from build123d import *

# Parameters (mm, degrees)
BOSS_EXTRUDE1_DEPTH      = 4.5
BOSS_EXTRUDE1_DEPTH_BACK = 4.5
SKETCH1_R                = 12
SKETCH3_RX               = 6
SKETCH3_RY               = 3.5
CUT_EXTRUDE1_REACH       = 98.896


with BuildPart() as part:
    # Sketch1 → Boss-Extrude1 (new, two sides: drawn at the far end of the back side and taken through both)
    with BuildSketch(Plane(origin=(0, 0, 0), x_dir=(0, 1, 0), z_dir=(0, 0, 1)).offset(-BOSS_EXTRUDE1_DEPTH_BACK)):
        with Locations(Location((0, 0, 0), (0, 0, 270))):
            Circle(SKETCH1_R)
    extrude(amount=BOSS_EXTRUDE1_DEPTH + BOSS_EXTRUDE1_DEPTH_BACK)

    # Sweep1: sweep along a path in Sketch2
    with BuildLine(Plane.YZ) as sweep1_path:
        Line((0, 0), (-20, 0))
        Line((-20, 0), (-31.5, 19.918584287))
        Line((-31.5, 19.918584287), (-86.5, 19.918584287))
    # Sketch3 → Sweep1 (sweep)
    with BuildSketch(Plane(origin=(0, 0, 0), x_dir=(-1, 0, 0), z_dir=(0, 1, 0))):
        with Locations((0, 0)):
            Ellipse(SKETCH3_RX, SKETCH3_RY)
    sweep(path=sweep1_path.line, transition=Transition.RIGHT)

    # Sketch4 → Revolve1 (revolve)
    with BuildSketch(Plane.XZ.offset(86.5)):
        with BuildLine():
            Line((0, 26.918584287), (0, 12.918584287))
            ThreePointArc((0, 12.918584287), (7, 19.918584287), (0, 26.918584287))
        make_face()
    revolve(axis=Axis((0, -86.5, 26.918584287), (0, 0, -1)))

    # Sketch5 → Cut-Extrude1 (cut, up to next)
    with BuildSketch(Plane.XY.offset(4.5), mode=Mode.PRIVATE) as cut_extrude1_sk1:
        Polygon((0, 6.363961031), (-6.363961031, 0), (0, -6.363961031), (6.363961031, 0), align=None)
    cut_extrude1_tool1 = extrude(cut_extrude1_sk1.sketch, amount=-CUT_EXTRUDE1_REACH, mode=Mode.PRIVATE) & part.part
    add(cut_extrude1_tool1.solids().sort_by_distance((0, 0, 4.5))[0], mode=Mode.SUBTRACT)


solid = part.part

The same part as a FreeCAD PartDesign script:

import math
import FreeCAD as App
import Part
import Sketcher

V = App.Vector
Q = App.Units.Quantity

doc = App.newDocument("Part")
body = doc.addObject("PartDesign::Body", "Body")

sketch1 = body.newObject("Sketcher::SketchObject", "Sketch")
sketch1.AttachmentSupport = (doc.getObject("XY_Plane"), [""])
sketch1.MapMode = "FlatFace"
sketch1.addGeometry(Part.Circle(V(0, 0, 0), V(0, 0, 1), 12), False)
sketch1.addConstraint([
    Sketcher.Constraint("Coincident", 0, 3, -1, 1),
    Sketcher.Constraint("Diameter", 0, 24.0),
])
pad1 = body.newObject("PartDesign::Pad", "Pad")
pad1.Profile = sketch1
pad1.Type = "TwoLengths"
pad1.Length = 4.5
pad1.Length2 = 4.5

sketch2 = body.newObject("Sketcher::SketchObject", "Sketch001")
sketch2.AttachmentSupport = (doc.getObject("XZ_Plane"), [""])
sketch2.MapMode = "FlatFace"
sketch2.addGeometry(Part.Ellipse(V(-6, 0, 0), V(0, -3.5, 0), V(0, 0, 0)), False)
sketch2.addConstraint(Sketcher.Constraint("Block", 0))

sketch3 = body.newObject("Sketcher::SketchObject", "Sketch002")
sketch3.AttachmentSupport = (doc.getObject("YZ_Plane"), [""])
sketch3.MapMode = "FlatFace"
sketch3.addGeometry([
    Part.LineSegment(V(0, 0, 0), V(-20, 0, 0)),
    Part.LineSegment(V(-20, 0, 0), V(-32, 20, 0)),
    Part.LineSegment(V(-32, 20, 0), V(-86, 20, 0)),
], False)
sketch3.addConstraint([
    Sketcher.Constraint("Coincident", 0, 2, 1, 1),
    Sketcher.Constraint("Coincident", 1, 2, 2, 1),
    Sketcher.Constraint("Horizontal", 0),
    Sketcher.Constraint("Horizontal", 2),
    Sketcher.Constraint("Coincident", 0, 1, -1, 1),
    Sketcher.Constraint("DistanceX", 0, 2, 0, 1, 20.0),
    Sketcher.Constraint("DistanceX", 2, 2, 2, 1, 55.0),
    Sketcher.Constraint("Angle", 1, Q("120 deg")),
    Sketcher.Constraint("Distance", 1, 23.0),
])
doc.recompute()

additivepipe = body.newObject("PartDesign::AdditivePipe", "AdditivePipe")
additivepipe.Profile = sketch2
additivepipe.Spine = (sketch3, ["Edge1", "Edge2", "Edge3"])
additivepipe.Transition = "Right corner"

sketch4 = body.newObject("Sketcher::SketchObject", "Sketch003")
sketch4.AttachmentSupport = (doc.getObject("XZ_Plane"), [""])
sketch4.MapMode = "FlatFace"
sketch4.AttachmentOffset = App.Placement(V(0, 0, 86.5), App.Rotation())
sketch4.addGeometry([
    Part.LineSegment(V(0, 27, 0), V(0, 13, 0)),
    Part.ArcOfCircle(Part.Circle(V(0, 20, 0), V(0, 0, 1), 7), math.radians(-90), math.radians(90)),
], False)
sketch4.addConstraint([
    Sketcher.Constraint("Coincident", 0, 1, 1, 2),
    Sketcher.Constraint("Coincident", 1, 1, 0, 2),
    Sketcher.Constraint("Vertical", 0),
    Sketcher.Constraint("PointOnObject", 1, 3, -2),
    Sketcher.Constraint("PointOnObject", 0, 1, -2),
    Sketcher.Constraint("Radius", 1, 7.0),
    Sketcher.Constraint("DistanceY", -1, 1, 1, 3, 19.918584),
])
revolution = body.newObject("PartDesign::Revolution", "Revolution")
revolution.Profile = sketch4
revolution.ReferenceAxis = (sketch4, ["V_Axis"])
revolution.Angle = 360

sketch5 = body.newObject("Sketcher::SketchObject", "Sketch004")
sketch5.AttachmentSupport = (doc.getObject("XY_Plane"), [""])
sketch5.MapMode = "FlatFace"
sketch5.AttachmentOffset = App.Placement(V(0, 0, 4.5), App.Rotation())
sketch5.addGeometry([
    Part.LineSegment(V(0, 6, 0), V(-6, 0, 0)),
    Part.LineSegment(V(-6, 0, 0), V(0, -6, 0)),
    Part.LineSegment(V(0, -6, 0), V(6, 0, 0)),
    Part.LineSegment(V(6, 0, 0), V(0, 6, 0)),
], False)
sketch5.addConstraint([
    Sketcher.Constraint("Coincident", 0, 2, 1, 1),
    Sketcher.Constraint("Coincident", 1, 2, 2, 1),
    Sketcher.Constraint("Coincident", 2, 2, 3, 1),
    Sketcher.Constraint("Coincident", 3, 2, 0, 1),
    Sketcher.Constraint("Symmetric", 0, 2, 2, 2, -1, 1),
    Sketcher.Constraint("Symmetric", 1, 2, 3, 2, -1, 1),
    Sketcher.Constraint("PointOnObject", 0, 2, -1),
    Sketcher.Constraint("PointOnObject", 1, 2, -2),
    Sketcher.Constraint("Perpendicular", 0, 1),
    Sketcher.Constraint("Distance", 0, 9.0),
])
pocket1 = body.newObject("PartDesign::Pocket", "Pocket")
pocket1.Profile = sketch5
pocket1.Type = "UpToFirst"

doc.recompute()
